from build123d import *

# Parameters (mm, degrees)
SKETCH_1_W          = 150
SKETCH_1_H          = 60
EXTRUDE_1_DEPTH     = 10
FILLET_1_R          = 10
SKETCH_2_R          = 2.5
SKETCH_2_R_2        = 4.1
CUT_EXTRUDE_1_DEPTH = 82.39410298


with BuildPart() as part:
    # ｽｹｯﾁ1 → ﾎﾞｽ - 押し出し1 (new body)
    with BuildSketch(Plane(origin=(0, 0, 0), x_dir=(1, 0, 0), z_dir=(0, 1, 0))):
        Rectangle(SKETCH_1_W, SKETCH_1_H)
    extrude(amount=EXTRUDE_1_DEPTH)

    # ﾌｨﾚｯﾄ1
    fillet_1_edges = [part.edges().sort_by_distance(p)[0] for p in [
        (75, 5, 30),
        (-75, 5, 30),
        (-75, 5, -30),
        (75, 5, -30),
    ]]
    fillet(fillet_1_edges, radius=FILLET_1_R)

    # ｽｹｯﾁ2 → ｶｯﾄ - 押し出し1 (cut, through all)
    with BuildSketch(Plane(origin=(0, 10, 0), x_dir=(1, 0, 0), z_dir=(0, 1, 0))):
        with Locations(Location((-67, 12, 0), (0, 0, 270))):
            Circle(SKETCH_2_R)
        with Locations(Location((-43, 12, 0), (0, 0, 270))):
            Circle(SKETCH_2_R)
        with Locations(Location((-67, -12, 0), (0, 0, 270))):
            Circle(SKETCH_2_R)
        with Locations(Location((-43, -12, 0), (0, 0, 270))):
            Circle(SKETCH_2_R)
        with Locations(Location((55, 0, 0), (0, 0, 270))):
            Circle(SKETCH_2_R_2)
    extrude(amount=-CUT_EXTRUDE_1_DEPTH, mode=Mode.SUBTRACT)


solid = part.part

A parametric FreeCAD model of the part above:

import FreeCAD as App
import Part
import Sketcher
from FreeCAD import Vector
Q = App.Units.Quantity


def edges_at(feature, points):
    """Names of the edges that pass closest to the given points."""
    edges = feature.Shape.Edges
    near = lambda p: min(range(len(edges)), key=lambda i: edges[i].distToShape(Part.Vertex(*p))[0])
    return sorted({f"Edge{near(p) + 1}" for p in points})

doc = App.newDocument("Part")
body = doc.addObject("PartDesign::Body", "Body")

# Sketch on XZ plane
sketch1 = body.newObject("Sketcher::SketchObject", "Sketch")
sketch1.AttachmentSupport = (doc.getObject("XZ_Plane"), [""])
sketch1.MapMode = "FlatFace"
sketch1.addGeometry(Part.LineSegment(Vector(-75, -30, 0), Vector(-75, 30, 0)), False)
sketch1.addGeometry(Part.LineSegment(Vector(-75, 30, 0), Vector(75, 30, 0)), False)
sketch1.addGeometry(Part.LineSegment(Vector(75, 30, 0), Vector(75, -30, 0)), False)
sketch1.addGeometry(Part.LineSegment(Vector(75, -30, 0), Vector(-75, -30, 0)), False)
sketch1.addConstraint(Sketcher.Constraint("Coincident", 0, 2, 1, 1))
sketch1.addConstraint(Sketcher.Constraint("Coincident", 1, 2, 2, 1))
sketch1.addConstraint(Sketcher.Constraint("Coincident", 2, 2, 3, 1))
sketch1.addConstraint(Sketcher.Constraint("Coincident", 3, 2, 0, 1))
sketch1.addConstraint(Sketcher.Constraint("Vertical", 0))
sketch1.addConstraint(Sketcher.Constraint("Horizontal", 1))
sketch1.addConstraint(Sketcher.Constraint("Vertical", 2))
sketch1.addConstraint(Sketcher.Constraint("Horizontal", 3))
sketch1.addConstraint(Sketcher.Constraint("Symmetric", 0, 2, 2, 2, -1, 1))
sketch1.addConstraint(Sketcher.Constraint("DistanceX", 1, 1, 1, 2, Q("150 mm")))
sketch1.addConstraint(Sketcher.Constraint("DistanceY", 0, 1, 0, 2, Q("60 mm")))
pad1 = body.newObject("PartDesign::Pad", "Pad")
pad1.Profile = sketch1
pad1.Length = 10
pad1.Reversed = True
doc.recompute()

fillet = body.newObject("PartDesign::Fillet", "Fillet")
fillet.Base = (pad1, edges_at(pad1, [
    (75, 5, 30),
    (-75, 5, 30),
    (-75, 5, -30),
    (75, 5, -30),
]))
fillet.Radius = 10

# Sketch on XZ plane
sketch2 = body.newObject("Sketcher::SketchObject", "Sketch001")
sketch2.AttachmentSupport = (doc.getObject("XZ_Plane"), [""])
sketch2.MapMode = "FlatFace"
sketch2.AttachmentOffset = App.Placement(Vector(0, 0, -10), App.Rotation())
sketch2.addGeometry(Part.Circle(Vector(-67, -12, 0), Vector(0, 0, 1), 2.5), False)
sketch2.addGeometry(Part.Circle(Vector(-43, -12, 0), Vector(0, 0, 1), 2.5), False)
sketch2.addGeometry(Part.Circle(Vector(-67, 12, 0), Vector(0, 0, 1), 2.5), False)
sketch2.addGeometry(Part.Circle(Vector(-43, 12, 0), Vector(0, 0, 1), 2.5), False)
sketch2.addGeometry(Part.Circle(Vector(55, 0, 0), Vector(0, 0, 1), 4.1), False)
sketch2.addConstraint(Sketcher.Constraint("Equal", 0, 1))
sketch2.addConstraint(Sketcher.Constraint("Equal", 1, 2))
sketch2.addConstraint(Sketcher.Constraint("Equal", 2, 3))
sketch2.addConstraint(Sketcher.Constraint("Symmetric", 0, 3, 2, 3, -1))
sketch2.addConstraint(Sketcher.Constraint("Symmetric", 1, 3, 3, 3, -1))
sketch2.addConstraint(Sketcher.Constraint("PointOnObject", 4, 3, -1))
sketch2.addConstraint(Sketcher.Constraint("Horizontal", 0, 3, 1, 3))
sketch2.addConstraint(Sketcher.Constraint("Diameter", 0, Q("5 mm")))
sketch2.addConstraint(Sketcher.Constraint("Diameter", 4, Q("8.2 mm")))
sketch2.addConstraint(Sketcher.Constraint("DistanceX", 0, 3, -1, 1, Q("67 mm")))
sketch2.addConstraint(Sketcher.Constraint("DistanceY", 0, 3, -1, 1, Q("12 mm")))
sketch2.addConstraint(Sketcher.Constraint("DistanceX", 1, 3, -1, 1, Q("43 mm")))
sketch2.addConstraint(Sketcher.Constraint("DistanceX", -1, 1, 4, 3, Q("55 mm")))
pocket1 = body.newObject("PartDesign::Pocket", "Pocket")
pocket1.Profile = sketch2
pocket1.Type = "ThroughAll"
pocket1.Reversed = True

doc.recompute()
